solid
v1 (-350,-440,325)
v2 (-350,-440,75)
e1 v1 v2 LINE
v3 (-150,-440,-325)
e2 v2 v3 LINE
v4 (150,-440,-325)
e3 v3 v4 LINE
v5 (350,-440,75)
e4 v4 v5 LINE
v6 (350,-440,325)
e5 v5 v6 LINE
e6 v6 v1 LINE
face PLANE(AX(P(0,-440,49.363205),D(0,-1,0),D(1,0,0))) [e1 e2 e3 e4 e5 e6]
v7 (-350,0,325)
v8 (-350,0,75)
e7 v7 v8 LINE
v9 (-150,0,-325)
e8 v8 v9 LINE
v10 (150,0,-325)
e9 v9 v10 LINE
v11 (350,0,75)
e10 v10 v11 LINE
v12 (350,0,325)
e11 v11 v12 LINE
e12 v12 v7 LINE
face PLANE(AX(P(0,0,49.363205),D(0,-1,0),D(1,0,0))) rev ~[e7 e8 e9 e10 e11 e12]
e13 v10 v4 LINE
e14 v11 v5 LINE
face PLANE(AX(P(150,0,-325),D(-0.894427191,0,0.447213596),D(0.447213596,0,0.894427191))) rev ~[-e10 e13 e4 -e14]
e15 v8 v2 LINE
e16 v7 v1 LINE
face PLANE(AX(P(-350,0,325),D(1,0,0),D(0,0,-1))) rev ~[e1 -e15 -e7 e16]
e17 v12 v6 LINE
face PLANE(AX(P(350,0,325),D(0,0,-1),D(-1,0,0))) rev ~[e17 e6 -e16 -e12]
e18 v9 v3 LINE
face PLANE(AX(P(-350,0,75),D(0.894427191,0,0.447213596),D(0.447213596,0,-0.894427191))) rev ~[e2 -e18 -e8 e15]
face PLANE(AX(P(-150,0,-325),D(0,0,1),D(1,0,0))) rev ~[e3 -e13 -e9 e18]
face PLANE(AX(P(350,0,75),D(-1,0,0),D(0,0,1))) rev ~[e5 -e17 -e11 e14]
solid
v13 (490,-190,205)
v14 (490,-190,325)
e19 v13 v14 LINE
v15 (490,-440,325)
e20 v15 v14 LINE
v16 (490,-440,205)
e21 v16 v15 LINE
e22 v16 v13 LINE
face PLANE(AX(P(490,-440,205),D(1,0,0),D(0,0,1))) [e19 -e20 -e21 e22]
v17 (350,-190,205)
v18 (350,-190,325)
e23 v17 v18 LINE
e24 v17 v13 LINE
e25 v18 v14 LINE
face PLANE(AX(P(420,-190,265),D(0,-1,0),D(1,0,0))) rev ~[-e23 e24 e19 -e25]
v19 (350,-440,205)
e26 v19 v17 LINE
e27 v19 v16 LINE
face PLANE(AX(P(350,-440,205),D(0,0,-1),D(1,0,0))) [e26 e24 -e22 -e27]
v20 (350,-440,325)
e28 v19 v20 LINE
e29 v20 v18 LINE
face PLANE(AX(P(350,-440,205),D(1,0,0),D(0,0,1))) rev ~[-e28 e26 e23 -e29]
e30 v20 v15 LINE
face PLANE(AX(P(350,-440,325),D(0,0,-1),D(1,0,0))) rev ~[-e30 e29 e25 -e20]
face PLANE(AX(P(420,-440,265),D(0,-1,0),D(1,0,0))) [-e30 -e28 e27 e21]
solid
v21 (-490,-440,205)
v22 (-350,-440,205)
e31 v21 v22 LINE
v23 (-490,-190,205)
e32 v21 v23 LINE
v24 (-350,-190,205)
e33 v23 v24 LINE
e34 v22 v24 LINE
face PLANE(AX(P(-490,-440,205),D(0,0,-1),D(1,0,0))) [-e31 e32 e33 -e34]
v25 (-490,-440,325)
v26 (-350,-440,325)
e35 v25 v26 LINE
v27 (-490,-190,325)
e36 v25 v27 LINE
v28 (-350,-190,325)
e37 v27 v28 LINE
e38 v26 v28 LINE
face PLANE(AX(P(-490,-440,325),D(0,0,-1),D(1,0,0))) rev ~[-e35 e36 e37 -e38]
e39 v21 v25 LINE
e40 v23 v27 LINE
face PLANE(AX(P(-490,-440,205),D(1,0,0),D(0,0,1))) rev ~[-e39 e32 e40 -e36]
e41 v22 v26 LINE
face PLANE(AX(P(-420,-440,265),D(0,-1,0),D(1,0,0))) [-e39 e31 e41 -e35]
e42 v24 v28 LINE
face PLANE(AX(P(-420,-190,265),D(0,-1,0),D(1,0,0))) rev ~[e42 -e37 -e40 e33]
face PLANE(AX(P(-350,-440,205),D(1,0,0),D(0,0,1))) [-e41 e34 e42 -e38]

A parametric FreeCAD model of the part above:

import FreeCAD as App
import Part
import Sketcher

V = App.Vector
Q = App.Units.Quantity

doc = App.newDocument("Part")
body = doc.addObject("PartDesign::Body", "Body")

# Sketch on XZ plane
sketch1 = body.newObject("Sketcher::SketchObject", "Sketch")
sketch1.AttachmentSupport = (doc.getObject("XZ_Plane"), [""])
sketch1.MapMode = "FlatFace"
sketch1.addGeometry(Part.LineSegment(V(350, 75, 0), V(350, 325, 0)), False)
sketch1.addGeometry(Part.LineSegment(V(350, 325, 0), V(-350, 325, 0)), False)
sketch1.addGeometry(Part.LineSegment(V(-350, 325, 0), V(-350, 75, 0)), False)
sketch1.addGeometry(Part.LineSegment(V(-350, 75, 0), V(-150, -325, 0)), False)
sketch1.addGeometry(Part.LineSegment(V(-150, -325, 0), V(150, -325, 0)), False)
sketch1.addGeometry(Part.LineSegment(V(150, -325, 0), V(350, 75, 0)), False)
sketch1.addConstraint(Sketcher.Constraint("Coincident", 0, 2, 1, 1))
sketch1.addConstraint(Sketcher.Constraint("Coincident", 1, 2, 2, 1))
sketch1.addConstraint(Sketcher.Constraint("Coincident", 2, 2, 3, 1))
sketch1.addConstraint(Sketcher.Constraint("Coincident", 3, 2, 4, 1))
sketch1.addConstraint(Sketcher.Constraint("Coincident", 4, 2, 5, 1))
sketch1.addConstraint(Sketcher.Constraint("Coincident", 5, 2, 0, 1))
sketch1.addConstraint(Sketcher.Constraint("Vertical", 0))
sketch1.addConstraint(Sketcher.Constraint("Horizontal", 1))
sketch1.addConstraint(Sketcher.Constraint("Vertical", 2))
sketch1.addConstraint(Sketcher.Constraint("Horizontal", 4))
sketch1.addConstraint(Sketcher.Constraint("Symmetric", 2, 2, 5, 2, -2))
sketch1.addConstraint(Sketcher.Constraint("Equal", 3, 5))
sketch1.addConstraint(Sketcher.Constraint("DistanceX", 1, 2, 1, 1, Q("700 mm")))
sketch1.addConstraint(Sketcher.Constraint("DistanceX", 4, 1, 4, 2, Q("300 mm")))
sketch1.addConstraint(Sketcher.Constraint("DistanceY", 0, 1, 0, 2, Q("250 mm")))
sketch1.addConstraint(Sketcher.Constraint("DistanceY", -1, 1, 0, 2, Q("325 mm")))
sketch1.addConstraint(Sketcher.Constraint("DistanceY", 3, 2, -1, 1, Q("325 mm")))
pad1 = body.newObject("PartDesign::Pad", "Pad")
pad1.Profile = sketch1
pad1.Length = 440
body2 = doc.addObject("PartDesign::Body", "Body001")

# Sketch on XZ plane
sketch2 = body2.newObject("Sketcher::SketchObject", "Sketch001")
sketch2.AttachmentSupport = (doc.getObject("XZ_Plane001"), [""])
sketch2.MapMode = "FlatFace"
sketch2.AttachmentOffset = App.Placement(V(0, 0, 440), App.Rotation())
sketch2.addGeometry(Part.LineSegment(V(-490, 325, 0), V(-490, 205, 0)), False)
sketch2.addGeometry(Part.LineSegment(V(-490, 205, 0), V(-350, 205, 0)), False)
sketch2.addGeometry(Part.LineSegment(V(-350, 205, 0), V(-350, 325, 0)), False)
sketch2.addGeometry(Part.LineSegment(V(-350, 325, 0), V(-490, 325, 0)), False)
sketch2.addConstraint(Sketcher.Constraint("Coincident", 0, 2, 1, 1))
sketch2.addConstraint(Sketcher.Constraint("Coincident", 1, 2, 2, 1))
sketch2.addConstraint(Sketcher.Constraint("Coincident", 2, 2, 3, 1))
sketch2.addConstraint(Sketcher.Constraint("Coincident", 3, 2, 0, 1))
sketch2.addConstraint(Sketcher.Constraint("Vertical", 0))
sketch2.addConstraint(Sketcher.Constraint("Horizontal", 1))
sketch2.addConstraint(Sketcher.Constraint("Vertical", 2))
sketch2.addConstraint(Sketcher.Constraint("Horizontal", 3))
sketch2.addConstraint(Sketcher.Constraint("DistanceX", 1, 1, 1, 2, Q("140 mm")))
sketch2.addConstraint(Sketcher.Constraint("DistanceY", 0, 2, 0, 1, Q("120 mm")))
sketch2.addConstraint(Sketcher.Constraint("DistanceX", 0, 2, -1, 1, Q("490 mm")))
sketch2.addConstraint(Sketcher.Constraint("DistanceY", -1, 1, 0, 2, Q("205 mm")))
pad2 = body2.newObject("PartDesign::Pad", "Pad001")
pad2.Profile = sketch2
pad2.Length = 250
pad2.Reversed = True
body3 = doc.addObject("PartDesign::Body", "Body002")

# Sketch on XZ plane
sketch3 = body3.newObject("Sketcher::SketchObject", "Sketch002")
sketch3.AttachmentSupport = (doc.getObject("XZ_Plane002"), [""])
sketch3.MapMode = "FlatFace"
sketch3.AttachmentOffset = App.Placement(V(0, 0, 440), App.Rotation())
sketch3.addGeometry(Part.LineSegment(V(350, 325, 0), V(350, 205, 0)), False)
sketch3.addGeometry(Part.LineSegment(V(350, 205, 0), V(490, 205, 0)), False)
sketch3.addGeometry(Part.LineSegment(V(490, 205, 0), V(490, 325, 0)), False)
sketch3.addGeometry(Part.LineSegment(V(490, 325, 0), V(350, 325, 0)), False)
sketch3.addConstraint(Sketcher.Constraint("Coincident", 0, 2, 1, 1))
sketch3.addConstraint(Sketcher.Constraint("Coincident", 1, 2, 2, 1))
sketch3.addConstraint(Sketcher.Constraint("Coincident", 2, 2, 3, 1))
sketch3.addConstraint(Sketcher.Constraint("Coincident", 3, 2, 0, 1))
sketch3.addConstraint(Sketcher.Constraint("Vertical", 0))
sketch3.addConstraint(Sketcher.Constraint("Horizontal", 1))
sketch3.addConstraint(Sketcher.Constraint("Vertical", 2))
sketch3.addConstraint(Sketcher.Constraint("Horizontal", 3))
sketch3.addConstraint(Sketcher.Constraint("DistanceX", 1, 1, 1, 2, Q("140 mm")))
sketch3.addConstraint(Sketcher.Constraint("DistanceY", 0, 2, 0, 1, Q("120 mm")))
sketch3.addConstraint(Sketcher.Constraint("DistanceX", -1, 1, 0, 2, Q("350 mm")))
sketch3.addConstraint(Sketcher.Constraint("DistanceY", -1, 1, 0, 2, Q("205 mm")))
pad3 = body3.newObject("PartDesign::Pad", "Pad002")
pad3.Profile = sketch3
pad3.Length = 250
pad3.Reversed = True

doc.recompute()
